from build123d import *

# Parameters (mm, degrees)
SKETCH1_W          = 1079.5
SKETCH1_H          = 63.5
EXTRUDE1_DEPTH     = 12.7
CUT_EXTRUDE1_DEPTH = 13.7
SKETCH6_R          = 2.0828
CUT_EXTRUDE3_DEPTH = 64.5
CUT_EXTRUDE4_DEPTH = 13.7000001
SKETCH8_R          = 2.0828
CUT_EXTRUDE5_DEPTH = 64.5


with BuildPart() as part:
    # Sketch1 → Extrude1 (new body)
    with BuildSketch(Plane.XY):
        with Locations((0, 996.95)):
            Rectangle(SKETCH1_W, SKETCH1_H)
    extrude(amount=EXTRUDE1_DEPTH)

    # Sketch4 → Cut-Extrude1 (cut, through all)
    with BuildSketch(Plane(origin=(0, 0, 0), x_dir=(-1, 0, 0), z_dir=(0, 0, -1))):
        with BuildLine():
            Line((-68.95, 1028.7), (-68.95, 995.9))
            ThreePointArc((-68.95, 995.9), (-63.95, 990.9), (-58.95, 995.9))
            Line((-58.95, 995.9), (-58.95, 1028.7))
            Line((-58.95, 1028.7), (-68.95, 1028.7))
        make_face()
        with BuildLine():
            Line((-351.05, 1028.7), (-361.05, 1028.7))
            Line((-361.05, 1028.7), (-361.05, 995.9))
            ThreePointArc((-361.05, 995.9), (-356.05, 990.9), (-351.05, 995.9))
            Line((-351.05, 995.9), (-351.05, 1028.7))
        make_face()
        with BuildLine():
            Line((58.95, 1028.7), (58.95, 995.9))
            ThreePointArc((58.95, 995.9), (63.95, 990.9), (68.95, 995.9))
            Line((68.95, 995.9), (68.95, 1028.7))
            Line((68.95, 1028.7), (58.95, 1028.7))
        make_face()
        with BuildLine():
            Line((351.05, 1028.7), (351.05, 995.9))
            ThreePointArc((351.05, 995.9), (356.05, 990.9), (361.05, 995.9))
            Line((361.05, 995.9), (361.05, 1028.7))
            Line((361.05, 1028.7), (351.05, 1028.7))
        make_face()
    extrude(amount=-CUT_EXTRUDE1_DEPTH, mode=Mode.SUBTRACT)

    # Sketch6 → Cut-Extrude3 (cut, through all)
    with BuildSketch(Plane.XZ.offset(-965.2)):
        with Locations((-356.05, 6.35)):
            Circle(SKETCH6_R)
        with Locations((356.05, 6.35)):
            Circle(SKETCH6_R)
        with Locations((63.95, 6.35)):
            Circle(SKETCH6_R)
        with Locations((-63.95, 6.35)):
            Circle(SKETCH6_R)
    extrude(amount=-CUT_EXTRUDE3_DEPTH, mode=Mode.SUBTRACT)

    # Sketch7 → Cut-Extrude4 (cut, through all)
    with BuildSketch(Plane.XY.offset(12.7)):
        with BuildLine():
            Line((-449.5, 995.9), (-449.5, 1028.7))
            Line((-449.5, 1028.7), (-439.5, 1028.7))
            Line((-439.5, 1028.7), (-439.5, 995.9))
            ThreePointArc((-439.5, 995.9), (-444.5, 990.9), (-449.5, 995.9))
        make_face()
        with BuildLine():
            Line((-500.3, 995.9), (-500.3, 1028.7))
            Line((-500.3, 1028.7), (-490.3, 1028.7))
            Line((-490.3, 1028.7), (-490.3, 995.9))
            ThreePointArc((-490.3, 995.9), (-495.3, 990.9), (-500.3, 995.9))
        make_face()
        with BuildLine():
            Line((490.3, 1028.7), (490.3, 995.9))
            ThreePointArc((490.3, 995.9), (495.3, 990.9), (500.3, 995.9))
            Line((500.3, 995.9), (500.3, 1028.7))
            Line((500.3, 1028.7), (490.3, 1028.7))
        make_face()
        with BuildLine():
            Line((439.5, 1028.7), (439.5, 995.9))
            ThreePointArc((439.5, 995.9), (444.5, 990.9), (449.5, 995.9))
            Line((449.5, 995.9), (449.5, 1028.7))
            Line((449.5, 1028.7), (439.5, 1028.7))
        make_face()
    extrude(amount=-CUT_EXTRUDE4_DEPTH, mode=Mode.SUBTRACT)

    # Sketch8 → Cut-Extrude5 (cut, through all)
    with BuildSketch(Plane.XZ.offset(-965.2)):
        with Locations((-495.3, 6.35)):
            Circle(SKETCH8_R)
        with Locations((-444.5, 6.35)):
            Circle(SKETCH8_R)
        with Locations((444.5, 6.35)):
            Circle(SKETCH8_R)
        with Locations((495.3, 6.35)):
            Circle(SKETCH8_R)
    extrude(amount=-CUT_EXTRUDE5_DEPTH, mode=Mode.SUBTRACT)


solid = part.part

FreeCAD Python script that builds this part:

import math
import FreeCAD as App
import Part
import Sketcher
Q = App.Units.Quantity


def add_polygon(sketch, points):
    """Adds a closed chain of lines whose ends are joined by coincident constraints."""
    first, n = sketch.GeometryCount, len(points)
    for a, b in zip(points, points[1:] + points[:1]):
        sketch.addGeometry(Part.LineSegment(App.Vector(*a, 0), App.Vector(*b, 0)), False)
    for i in range(n):
        sketch.addConstraint(Sketcher.Constraint("Coincident", first + i, 2, first + (i + 1) % n, 1))

doc = App.newDocument("Part")
body = doc.addObject("PartDesign::Body", "Body")

# Sketch on XY plane
sketch1 = doc.addObject("Sketcher::SketchObject", "Sketch")
body.addObject(sketch1)
sketch1.AttachmentSupport = (doc.XY_Plane, [""])
sketch1.MapMode = "FlatFace"
add_polygon(sketch1, [(-539.75, 1028.7), (-539.75, 965.2), (539.75, 965.2), (539.75, 1028.7)])  # lines 0-3
sketch1.addConstraint(Sketcher.Constraint("Vertical", 0))
sketch1.addConstraint(Sketcher.Constraint("Horizontal", 1))
sketch1.addConstraint(Sketcher.Constraint("Vertical", 2))
sketch1.addConstraint(Sketcher.Constraint("Horizontal", 3))
sketch1.addConstraint(Sketcher.Constraint("DistanceX", 1, 1, 1, 2, Q("1079.5 mm")))
sketch1.addConstraint(Sketcher.Constraint("DistanceY", 0, 2, 0, 1, Q("63.5 mm")))
sketch1.addConstraint(Sketcher.Constraint("DistanceY", -1, 1, 0, 2, Q("965.2 mm")))
sketch1.addConstraint(Sketcher.Constraint("DistanceX", 0, 2, -1, 1, Q("539.75 mm")))
pad1 = doc.addObject("PartDesign::Pad", "Pad")
body.addObject(pad1)
pad1.Profile = sketch1
pad1.Length = 12.7

# Sketch on XY plane
sketch2 = doc.addObject("Sketcher::SketchObject", "Sketch001")
body.addObject(sketch2)
sketch2.AttachmentSupport = (doc.XY_Plane, [""])
sketch2.MapMode = "FlatFace"
sketch2.addGeometry(Part.LineSegment(App.Vector(68.95, 1028.7, 0), App.Vector(68.95, 995.9, 0)), False)
sketch2.addGeometry(Part.ArcOfCircle(Part.Circle(App.Vector(63.95, 995.9, 0), App.Vector(0, 0, 1), 5), math.radians(180), math.radians(360)), False)
sketch2.addGeometry(Part.LineSegment(App.Vector(58.95, 995.9, 0), App.Vector(58.95, 1028.7, 0)), False)
sketch2.addGeometry(Part.LineSegment(App.Vector(58.95, 1028.7, 0), App.Vector(68.95, 1028.7, 0)), False)
sketch2.addGeometry(Part.LineSegment(App.Vector(351.05, 1028.7, 0), App.Vector(361.05, 1028.7, 0)), False)
sketch2.addGeometry(Part.LineSegment(App.Vector(361.05, 1028.7, 0), App.Vector(361.05, 995.9, 0)), False)
sketch2.addGeometry(Part.ArcOfCircle(Part.Circle(App.Vector(356.05, 995.9, 0), App.Vector(0, 0, 1), 5), math.radians(180), math.radians(360)), False)
sketch2.addGeometry(Part.LineSegment(App.Vector(351.05, 995.9, 0), App.Vector(351.05, 1028.7, 0)), False)
sketch2.addGeometry(Part.LineSegment(App.Vector(-58.95, 1028.7, 0), App.Vector(-58.95, 995.9, 0)), False)
sketch2.addGeometry(Part.ArcOfCircle(Part.Circle(App.Vector(-63.95, 995.9, 0), App.Vector(0, 0, 1), 5), math.radians(180), math.radians(360)), False)
sketch2.addGeometry(Part.LineSegment(App.Vector(-68.95, 995.9, 0), App.Vector(-68.95, 1028.7, 0)), False)
sketch2.addGeometry(Part.LineSegment(App.Vector(-68.95, 1028.7, 0), App.Vector(-58.95, 1028.7, 0)), False)
sketch2.addGeometry(Part.LineSegment(App.Vector(-351.05, 1028.7, 0), App.Vector(-351.05, 995.9, 0)), False)
sketch2.addGeometry(Part.ArcOfCircle(Part.Circle(App.Vector(-356.05, 995.9, 0), App.Vector(0, 0, 1), 5), math.radians(180), math.radians(360)), False)
sketch2.addGeometry(Part.LineSegment(App.Vector(-361.05, 995.9, 0), App.Vector(-361.05, 1028.7, 0)), False)
sketch2.addGeometry(Part.LineSegment(App.Vector(-361.05, 1028.7, 0), App.Vector(-351.05, 1028.7, 0)), False)
sketch2.addConstraint(Sketcher.Constraint("Tangent", 0, 2, 1, 2))
sketch2.addConstraint(Sketcher.Constraint("Tangent", 1, 1, 2, 1))
sketch2.addConstraint(Sketcher.Constraint("Coincident", 2, 2, 3, 1))
sketch2.addConstraint(Sketcher.Constraint("Coincident", 3, 2, 0, 1))
sketch2.addConstraint(Sketcher.Constraint("Coincident", 4, 2, 5, 1))
sketch2.addConstraint(Sketcher.Constraint("Tangent", 5, 2, 6, 2))
sketch2.addConstraint(Sketcher.Constraint("Tangent", 6, 1, 7, 1))
sketch2.addConstraint(Sketcher.Constraint("Coincident", 7, 2, 4, 1))
sketch2.addConstraint(Sketcher.Constraint("Tangent", 8, 2, 9, 2))
sketch2.addConstraint(Sketcher.Constraint("Tangent", 9, 1, 10, 1))
sketch2.addConstraint(Sketcher.Constraint("Coincident", 10, 2, 11, 1))
sketch2.addConstraint(Sketcher.Constraint("Coincident", 11, 2, 8, 1))
sketch2.addConstraint(Sketcher.Constraint("Tangent", 12, 2, 13, 2))
sketch2.addConstraint(Sketcher.Constraint("Tangent", 13, 1, 14, 1))
sketch2.addConstraint(Sketcher.Constraint("Coincident", 14, 2, 15, 1))
sketch2.addConstraint(Sketcher.Constraint("Coincident", 15, 2, 12, 1))
sketch2.addConstraint(Sketcher.Constraint("Vertical", 0))
sketch2.addConstraint(Sketcher.Constraint("Vertical", 2))
sketch2.addConstraint(Sketcher.Constraint("Horizontal", 3))
sketch2.addConstraint(Sketcher.Constraint("Horizontal", 4))
sketch2.addConstraint(Sketcher.Constraint("Vertical", 5))
sketch2.addConstraint(Sketcher.Constraint("Vertical", 7))
sketch2.addConstraint(Sketcher.Constraint("Vertical", 8))
sketch2.addConstraint(Sketcher.Constraint("Vertical", 10))
sketch2.addConstraint(Sketcher.Constraint("Horizontal", 11))
sketch2.addConstraint(Sketcher.Constraint("Vertical", 12))
sketch2.addConstraint(Sketcher.Constraint("Vertical", 14))
sketch2.addConstraint(Sketcher.Constraint("Horizontal", 15))
sketch2.addConstraint(Sketcher.Constraint("Equal", 1, 6))
sketch2.addConstraint(Sketcher.Constraint("Equal", 6, 9))
sketch2.addConstraint(Sketcher.Constraint("Equal", 9, 13))
sketch2.addConstraint(Sketcher.Constraint("Symmetric", 1, 3, 9, 3, -2))
sketch2.addConstraint(Sketcher.Constraint("Symmetric", 6, 3, 13, 3, -2))
sketch2.addConstraint(Sketcher.Constraint("Horizontal", 1, 3, 6, 3))
sketch2.addConstraint(Sketcher.Constraint("Horizontal", 3, 2, 4, 2))
sketch2.addConstraint(Sketcher.Constraint("Horizontal", 7, 2, 10, 2))
sketch2.addConstraint(Sketcher.Constraint("Horizontal", 11, 2, 14, 2))
sketch2.addConstraint(Sketcher.Constraint("Radius", 1, Q("5 mm")))
sketch2.addConstraint(Sketcher.Constraint("DistanceY", 0, 2, 0, 1, Q("32.8 mm")))
sketch2.addConstraint(Sketcher.Constraint("DistanceX", 9, 3, 6, 3, Q("420 mm")))
sketch2.addConstraint(Sketcher.Constraint("DistanceY", -1, 1, 1, 3, Q("995.9 mm")))
sketch2.addConstraint(Sketcher.Constraint("DistanceX", 1, 3, 6, 3, Q("292.1 mm")))
pocket1 = doc.addObject("PartDesign::Pocket", "Pocket")
body.addObject(pocket1)
pocket1.Profile = sketch2
pocket1.Type = "ThroughAll"
pocket1.Reversed = True

# Sketch on XZ plane
sketch3 = doc.addObject("Sketcher::SketchObject", "Sketch002")
body.addObject(sketch3)
sketch3.AttachmentSupport = (doc.XZ_Plane, [""])
sketch3.MapMode = "FlatFace"
sketch3.AttachmentOffset = App.Placement(App.Vector(0, 0, -965.2), App.Rotation())
sketch3.addGeometry(Part.Circle(App.Vector(-356.05, 6.35, 0), App.Vector(0, 0, 1), 2.0828), False)
sketch3.addGeometry(Part.Circle(App.Vector(356.05, 6.35, 0), App.Vector(0, 0, 1), 2.0828), False)
sketch3.addGeometry(Part.Circle(App.Vector(63.95, 6.35, 0), App.Vector(0, 0, 1), 2.0828), False)
sketch3.addGeometry(Part.Circle(App.Vector(-63.95, 6.35, 0), App.Vector(0, 0, 1), 2.0828), False)
sketch3.addConstraint(Sketcher.Constraint("Equal", 0, 1))
sketch3.addConstraint(Sketcher.Constraint("Equal", 1, 2))
sketch3.addConstraint(Sketcher.Constraint("Equal", 2, 3))
sketch3.addConstraint(Sketcher.Constraint("Symmetric", 0, 3, 1, 3, -2))
sketch3.addConstraint(Sketcher.Constraint("Symmetric", 2, 3, 3, 3, -2))
sketch3.addConstraint(Sketcher.Constraint("Horizontal", 1, 3, 2, 3))
sketch3.addConstraint(Sketcher.Constraint("DistanceX", 0, 3, 2, 3, Q("420 mm")))
sketch3.addConstraint(Sketcher.Constraint("Diameter", 0, Q("4.1656 mm")))
sketch3.addConstraint(Sketcher.Constraint("DistanceX", 0, 3, 1, 3, Q("712.1 mm")))
sketch3.addConstraint(Sketcher.Constraint("DistanceY", -1, 1, 0, 3, Q("6.35 mm")))
pocket2 = doc.addObject("PartDesign::Pocket", "Pocket001")
body.addObject(pocket2)
pocket2.Profile = sketch3
pocket2.Type = "ThroughAll"

# Sketch on XY plane
sketch4 = doc.addObject("Sketcher::SketchObject", "Sketch003")
body.addObject(sketch4)
sketch4.AttachmentSupport = (doc.XY_Plane, [""])
sketch4.MapMode = "FlatFace"
sketch4.AttachmentOffset = App.Placement(App.Vector(0, 0, 12.7), App.Rotation())
sketch4.addGeometry(Part.LineSegment(App.Vector(-449.5, 1028.7, 0), App.Vector(-449.5, 995.9, 0)), False)
sketch4.addGeometry(Part.ArcOfCircle(Part.Circle(App.Vector(-444.5, 995.9, 0), App.Vector(0, 0, 1), 5), math.radians(180), math.radians(360)), False)
sketch4.addGeometry(Part.LineSegment(App.Vector(-439.5, 995.9, 0), App.Vector(-439.5, 1028.7, 0)), False)
sketch4.addGeometry(Part.LineSegment(App.Vector(-439.5, 1028.7, 0), App.Vector(-449.5, 1028.7, 0)), False)
sketch4.addGeometry(Part.LineSegment(App.Vector(-500.3, 1028.7, 0), App.Vector(-500.3, 995.9, 0)), False)
sketch4.addGeometry(Part.ArcOfCircle(Part.Circle(App.Vector(-495.3, 995.9, 0), App.Vector(0, 0, 1), 5), math.radians(180), math.radians(360)), False)
sketch4.addGeometry(Part.LineSegment(App.Vector(-490.3, 995.9, 0), App.Vector(-490.3, 1028.7, 0)), False)
sketch4.addGeometry(Part.LineSegment(App.Vector(-490.3, 1028.7, 0), App.Vector(-500.3, 1028.7, 0)), False)
sketch4.addGeometry(Part.LineSegment(App.Vector(490.3, 1028.7, 0), App.Vector(490.3, 995.9, 0)), False)
sketch4.addGeometry(Part.ArcOfCircle(Part.Circle(App.Vector(495.3, 995.9, 0), App.Vector(0, 0, 1), 5), math.radians(180), math.radians(360)), False)
sketch4.addGeometry(Part.LineSegment(App.Vector(500.3, 995.9, 0), App.Vector(500.3, 1028.7, 0)), False)
sketch4.addGeometry(Part.LineSegment(App.Vector(500.3, 1028.7, 0), App.Vector(490.3, 1028.7, 0)), False)
sketch4.addGeometry(Part.LineSegment(App.Vector(439.5, 1028.7, 0), App.Vector(439.5, 995.9, 0)), False)
sketch4.addGeometry(Part.ArcOfCircle(Part.Circle(App.Vector(444.5, 995.9, 0), App.Vector(0, 0, 1), 5), math.radians(180), math.radians(360)), False)
sketch4.addGeometry(Part.LineSegment(App.Vector(449.5, 995.9, 0), App.Vector(449.5, 1028.7, 0)), False)
sketch4.addGeometry(Part.LineSegment(App.Vector(449.5, 1028.7, 0), App.Vector(439.5, 1028.7, 0)), False)
sketch4.addConstraint(Sketcher.Constraint("Tangent", 0, 2, 1, 1))
sketch4.addConstraint(Sketcher.Constraint("Tangent", 1, 2, 2, 1))
sketch4.addConstraint(Sketcher.Constraint("Coincident", 2, 2, 3, 1))
sketch4.addConstraint(Sketcher.Constraint("Coincident", 3, 2, 0, 1))
sketch4.addConstraint(Sketcher.Constraint("Tangent", 4, 2, 5, 1))
sketch4.addConstraint(Sketcher.Constraint("Tangent", 5, 2, 6, 1))
sketch4.addConstraint(Sketcher.Constraint("Coincident", 6, 2, 7, 1))
sketch4.addConstraint(Sketcher.Constraint("Coincident", 7, 2, 4, 1))
sketch4.addConstraint(Sketcher.Constraint("Tangent", 8, 2, 9, 1))
sketch4.addConstraint(Sketcher.Constraint("Tangent", 9, 2, 10, 1))
sketch4.addConstraint(Sketcher.Constraint("Coincident", 10, 2, 11, 1))
sketch4.addConstraint(Sketcher.Constraint("Coincident", 11, 2, 8, 1))
sketch4.addConstraint(Sketcher.Constraint("Tangent", 12, 2, 13, 1))
sketch4.addConstraint(Sketcher.Constraint("Tangent", 13, 2, 14, 1))
sketch4.addConstraint(Sketcher.Constraint("Coincident", 14, 2, 15, 1))
sketch4.addConstraint(Sketcher.Constraint("Coincident", 15, 2, 12, 1))
sketch4.addConstraint(Sketcher.Constraint("Vertical", 0))
sketch4.addConstraint(Sketcher.Constraint("Vertical", 2))
sketch4.addConstraint(Sketcher.Constraint("Horizontal", 3))
sketch4.addConstraint(Sketcher.Constraint("Vertical", 4))
sketch4.addConstraint(Sketcher.Constraint("Vertical", 6))
sketch4.addConstraint(Sketcher.Constraint("Horizontal", 7))
sketch4.addConstraint(Sketcher.Constraint("Vertical", 8))
sketch4.addConstraint(Sketcher.Constraint("Vertical", 10))
sketch4.addConstraint(Sketcher.Constraint("Horizontal", 11))
sketch4.addConstraint(Sketcher.Constraint("Vertical", 12))
sketch4.addConstraint(Sketcher.Constraint("Vertical", 14))
sketch4.addConstraint(Sketcher.Constraint("Horizontal", 15))
sketch4.addConstraint(Sketcher.Constraint("Equal", 1, 5))
sketch4.addConstraint(Sketcher.Constraint("Equal", 5, 9))
sketch4.addConstraint(Sketcher.Constraint("Equal", 9, 13))
sketch4.addConstraint(Sketcher.Constraint("Symmetric", 5, 3, 9, 3, -2))
sketch4.addConstraint(Sketcher.Constraint("Symmetric", 1, 3, 13, 3, -2))
sketch4.addConstraint(Sketcher.Constraint("Horizontal", 1, 3, 5, 3))
sketch4.addConstraint(Sketcher.Constraint("Horizontal", 3, 2, 6, 2))
sketch4.addConstraint(Sketcher.Constraint("Horizontal", 7, 2, 10, 2))
sketch4.addConstraint(Sketcher.Constraint("Horizontal", 11, 2, 14, 2))
sketch4.addConstraint(Sketcher.Constraint("Radius", 1, Q("5 mm")))
sketch4.addConstraint(Sketcher.Constraint("DistanceY", 0, 2, 0, 1, Q("32.8 mm")))
sketch4.addConstraint(Sketcher.Constraint("DistanceX", 1, 3, 13, 3, Q("889 mm")))
sketch4.addConstraint(Sketcher.Constraint("DistanceY", -1, 1, 1, 3, Q("995.9 mm")))
sketch4.addConstraint(Sketcher.Constraint("DistanceX", 5, 3, -1, 1, Q("495.3 mm")))
pocket3 = doc.addObject("PartDesign::Pocket", "Pocket002")
body.addObject(pocket3)
pocket3.Profile = sketch4
pocket3.Type = "ThroughAll"

# Sketch on XZ plane
sketch5 = doc.addObject("Sketcher::SketchObject", "Sketch004")
body.addObject(sketch5)
sketch5.AttachmentSupport = (doc.XZ_Plane, [""])
sketch5.MapMode = "FlatFace"
sketch5.AttachmentOffset = App.Placement(App.Vector(0, 0, -965.2), App.Rotation())
sketch5.addGeometry(Part.Circle(App.Vector(-495.3, 6.35, 0), App.Vector(0, 0, 1), 2.0828), False)
sketch5.addGeometry(Part.Circle(App.Vector(-444.5, 6.35, 0), App.Vector(0, 0, 1), 2.0828), False)
sketch5.addGeometry(Part.Circle(App.Vector(444.5, 6.35, 0), App.Vector(0, 0, 1), 2.0828), False)
sketch5.addGeometry(Part.Circle(App.Vector(495.3, 6.35, 0), App.Vector(0, 0, 1), 2.0828), False)
sketch5.addConstraint(Sketcher.Constraint("Equal", 0, 1))
sketch5.addConstraint(Sketcher.Constraint("Equal", 1, 2))
sketch5.addConstraint(Sketcher.Constraint("Equal", 2, 3))
sketch5.addConstraint(Sketcher.Constraint("Symmetric", 1, 3, 2, 3, -2))
sketch5.addConstraint(Sketcher.Constraint("Symmetric", 0, 3, 3, 3, -2))
sketch5.addConstraint(Sketcher.Constraint("Horizontal", 0, 3, 1, 3))
sketch5.addConstraint(Sketcher.Constraint("DistanceX", 1, 3, 2, 3, Q("889 mm")))
sketch5.addConstraint(Sketcher.Constraint("Diameter", 0, Q("4.1656 mm")))
sketch5.addConstraint(Sketcher.Constraint("DistanceX", 0, 3, -1, 1, Q("495.3 mm")))
sketch5.addConstraint(Sketcher.Constraint("DistanceY", -1, 1, 0, 3, Q("6.35 mm")))
pocket4 = doc.addObject("PartDesign::Pocket", "Pocket003")
body.addObject(pocket4)
pocket4.Profile = sketch5
pocket4.Type = "ThroughAll"

doc.recompute()
